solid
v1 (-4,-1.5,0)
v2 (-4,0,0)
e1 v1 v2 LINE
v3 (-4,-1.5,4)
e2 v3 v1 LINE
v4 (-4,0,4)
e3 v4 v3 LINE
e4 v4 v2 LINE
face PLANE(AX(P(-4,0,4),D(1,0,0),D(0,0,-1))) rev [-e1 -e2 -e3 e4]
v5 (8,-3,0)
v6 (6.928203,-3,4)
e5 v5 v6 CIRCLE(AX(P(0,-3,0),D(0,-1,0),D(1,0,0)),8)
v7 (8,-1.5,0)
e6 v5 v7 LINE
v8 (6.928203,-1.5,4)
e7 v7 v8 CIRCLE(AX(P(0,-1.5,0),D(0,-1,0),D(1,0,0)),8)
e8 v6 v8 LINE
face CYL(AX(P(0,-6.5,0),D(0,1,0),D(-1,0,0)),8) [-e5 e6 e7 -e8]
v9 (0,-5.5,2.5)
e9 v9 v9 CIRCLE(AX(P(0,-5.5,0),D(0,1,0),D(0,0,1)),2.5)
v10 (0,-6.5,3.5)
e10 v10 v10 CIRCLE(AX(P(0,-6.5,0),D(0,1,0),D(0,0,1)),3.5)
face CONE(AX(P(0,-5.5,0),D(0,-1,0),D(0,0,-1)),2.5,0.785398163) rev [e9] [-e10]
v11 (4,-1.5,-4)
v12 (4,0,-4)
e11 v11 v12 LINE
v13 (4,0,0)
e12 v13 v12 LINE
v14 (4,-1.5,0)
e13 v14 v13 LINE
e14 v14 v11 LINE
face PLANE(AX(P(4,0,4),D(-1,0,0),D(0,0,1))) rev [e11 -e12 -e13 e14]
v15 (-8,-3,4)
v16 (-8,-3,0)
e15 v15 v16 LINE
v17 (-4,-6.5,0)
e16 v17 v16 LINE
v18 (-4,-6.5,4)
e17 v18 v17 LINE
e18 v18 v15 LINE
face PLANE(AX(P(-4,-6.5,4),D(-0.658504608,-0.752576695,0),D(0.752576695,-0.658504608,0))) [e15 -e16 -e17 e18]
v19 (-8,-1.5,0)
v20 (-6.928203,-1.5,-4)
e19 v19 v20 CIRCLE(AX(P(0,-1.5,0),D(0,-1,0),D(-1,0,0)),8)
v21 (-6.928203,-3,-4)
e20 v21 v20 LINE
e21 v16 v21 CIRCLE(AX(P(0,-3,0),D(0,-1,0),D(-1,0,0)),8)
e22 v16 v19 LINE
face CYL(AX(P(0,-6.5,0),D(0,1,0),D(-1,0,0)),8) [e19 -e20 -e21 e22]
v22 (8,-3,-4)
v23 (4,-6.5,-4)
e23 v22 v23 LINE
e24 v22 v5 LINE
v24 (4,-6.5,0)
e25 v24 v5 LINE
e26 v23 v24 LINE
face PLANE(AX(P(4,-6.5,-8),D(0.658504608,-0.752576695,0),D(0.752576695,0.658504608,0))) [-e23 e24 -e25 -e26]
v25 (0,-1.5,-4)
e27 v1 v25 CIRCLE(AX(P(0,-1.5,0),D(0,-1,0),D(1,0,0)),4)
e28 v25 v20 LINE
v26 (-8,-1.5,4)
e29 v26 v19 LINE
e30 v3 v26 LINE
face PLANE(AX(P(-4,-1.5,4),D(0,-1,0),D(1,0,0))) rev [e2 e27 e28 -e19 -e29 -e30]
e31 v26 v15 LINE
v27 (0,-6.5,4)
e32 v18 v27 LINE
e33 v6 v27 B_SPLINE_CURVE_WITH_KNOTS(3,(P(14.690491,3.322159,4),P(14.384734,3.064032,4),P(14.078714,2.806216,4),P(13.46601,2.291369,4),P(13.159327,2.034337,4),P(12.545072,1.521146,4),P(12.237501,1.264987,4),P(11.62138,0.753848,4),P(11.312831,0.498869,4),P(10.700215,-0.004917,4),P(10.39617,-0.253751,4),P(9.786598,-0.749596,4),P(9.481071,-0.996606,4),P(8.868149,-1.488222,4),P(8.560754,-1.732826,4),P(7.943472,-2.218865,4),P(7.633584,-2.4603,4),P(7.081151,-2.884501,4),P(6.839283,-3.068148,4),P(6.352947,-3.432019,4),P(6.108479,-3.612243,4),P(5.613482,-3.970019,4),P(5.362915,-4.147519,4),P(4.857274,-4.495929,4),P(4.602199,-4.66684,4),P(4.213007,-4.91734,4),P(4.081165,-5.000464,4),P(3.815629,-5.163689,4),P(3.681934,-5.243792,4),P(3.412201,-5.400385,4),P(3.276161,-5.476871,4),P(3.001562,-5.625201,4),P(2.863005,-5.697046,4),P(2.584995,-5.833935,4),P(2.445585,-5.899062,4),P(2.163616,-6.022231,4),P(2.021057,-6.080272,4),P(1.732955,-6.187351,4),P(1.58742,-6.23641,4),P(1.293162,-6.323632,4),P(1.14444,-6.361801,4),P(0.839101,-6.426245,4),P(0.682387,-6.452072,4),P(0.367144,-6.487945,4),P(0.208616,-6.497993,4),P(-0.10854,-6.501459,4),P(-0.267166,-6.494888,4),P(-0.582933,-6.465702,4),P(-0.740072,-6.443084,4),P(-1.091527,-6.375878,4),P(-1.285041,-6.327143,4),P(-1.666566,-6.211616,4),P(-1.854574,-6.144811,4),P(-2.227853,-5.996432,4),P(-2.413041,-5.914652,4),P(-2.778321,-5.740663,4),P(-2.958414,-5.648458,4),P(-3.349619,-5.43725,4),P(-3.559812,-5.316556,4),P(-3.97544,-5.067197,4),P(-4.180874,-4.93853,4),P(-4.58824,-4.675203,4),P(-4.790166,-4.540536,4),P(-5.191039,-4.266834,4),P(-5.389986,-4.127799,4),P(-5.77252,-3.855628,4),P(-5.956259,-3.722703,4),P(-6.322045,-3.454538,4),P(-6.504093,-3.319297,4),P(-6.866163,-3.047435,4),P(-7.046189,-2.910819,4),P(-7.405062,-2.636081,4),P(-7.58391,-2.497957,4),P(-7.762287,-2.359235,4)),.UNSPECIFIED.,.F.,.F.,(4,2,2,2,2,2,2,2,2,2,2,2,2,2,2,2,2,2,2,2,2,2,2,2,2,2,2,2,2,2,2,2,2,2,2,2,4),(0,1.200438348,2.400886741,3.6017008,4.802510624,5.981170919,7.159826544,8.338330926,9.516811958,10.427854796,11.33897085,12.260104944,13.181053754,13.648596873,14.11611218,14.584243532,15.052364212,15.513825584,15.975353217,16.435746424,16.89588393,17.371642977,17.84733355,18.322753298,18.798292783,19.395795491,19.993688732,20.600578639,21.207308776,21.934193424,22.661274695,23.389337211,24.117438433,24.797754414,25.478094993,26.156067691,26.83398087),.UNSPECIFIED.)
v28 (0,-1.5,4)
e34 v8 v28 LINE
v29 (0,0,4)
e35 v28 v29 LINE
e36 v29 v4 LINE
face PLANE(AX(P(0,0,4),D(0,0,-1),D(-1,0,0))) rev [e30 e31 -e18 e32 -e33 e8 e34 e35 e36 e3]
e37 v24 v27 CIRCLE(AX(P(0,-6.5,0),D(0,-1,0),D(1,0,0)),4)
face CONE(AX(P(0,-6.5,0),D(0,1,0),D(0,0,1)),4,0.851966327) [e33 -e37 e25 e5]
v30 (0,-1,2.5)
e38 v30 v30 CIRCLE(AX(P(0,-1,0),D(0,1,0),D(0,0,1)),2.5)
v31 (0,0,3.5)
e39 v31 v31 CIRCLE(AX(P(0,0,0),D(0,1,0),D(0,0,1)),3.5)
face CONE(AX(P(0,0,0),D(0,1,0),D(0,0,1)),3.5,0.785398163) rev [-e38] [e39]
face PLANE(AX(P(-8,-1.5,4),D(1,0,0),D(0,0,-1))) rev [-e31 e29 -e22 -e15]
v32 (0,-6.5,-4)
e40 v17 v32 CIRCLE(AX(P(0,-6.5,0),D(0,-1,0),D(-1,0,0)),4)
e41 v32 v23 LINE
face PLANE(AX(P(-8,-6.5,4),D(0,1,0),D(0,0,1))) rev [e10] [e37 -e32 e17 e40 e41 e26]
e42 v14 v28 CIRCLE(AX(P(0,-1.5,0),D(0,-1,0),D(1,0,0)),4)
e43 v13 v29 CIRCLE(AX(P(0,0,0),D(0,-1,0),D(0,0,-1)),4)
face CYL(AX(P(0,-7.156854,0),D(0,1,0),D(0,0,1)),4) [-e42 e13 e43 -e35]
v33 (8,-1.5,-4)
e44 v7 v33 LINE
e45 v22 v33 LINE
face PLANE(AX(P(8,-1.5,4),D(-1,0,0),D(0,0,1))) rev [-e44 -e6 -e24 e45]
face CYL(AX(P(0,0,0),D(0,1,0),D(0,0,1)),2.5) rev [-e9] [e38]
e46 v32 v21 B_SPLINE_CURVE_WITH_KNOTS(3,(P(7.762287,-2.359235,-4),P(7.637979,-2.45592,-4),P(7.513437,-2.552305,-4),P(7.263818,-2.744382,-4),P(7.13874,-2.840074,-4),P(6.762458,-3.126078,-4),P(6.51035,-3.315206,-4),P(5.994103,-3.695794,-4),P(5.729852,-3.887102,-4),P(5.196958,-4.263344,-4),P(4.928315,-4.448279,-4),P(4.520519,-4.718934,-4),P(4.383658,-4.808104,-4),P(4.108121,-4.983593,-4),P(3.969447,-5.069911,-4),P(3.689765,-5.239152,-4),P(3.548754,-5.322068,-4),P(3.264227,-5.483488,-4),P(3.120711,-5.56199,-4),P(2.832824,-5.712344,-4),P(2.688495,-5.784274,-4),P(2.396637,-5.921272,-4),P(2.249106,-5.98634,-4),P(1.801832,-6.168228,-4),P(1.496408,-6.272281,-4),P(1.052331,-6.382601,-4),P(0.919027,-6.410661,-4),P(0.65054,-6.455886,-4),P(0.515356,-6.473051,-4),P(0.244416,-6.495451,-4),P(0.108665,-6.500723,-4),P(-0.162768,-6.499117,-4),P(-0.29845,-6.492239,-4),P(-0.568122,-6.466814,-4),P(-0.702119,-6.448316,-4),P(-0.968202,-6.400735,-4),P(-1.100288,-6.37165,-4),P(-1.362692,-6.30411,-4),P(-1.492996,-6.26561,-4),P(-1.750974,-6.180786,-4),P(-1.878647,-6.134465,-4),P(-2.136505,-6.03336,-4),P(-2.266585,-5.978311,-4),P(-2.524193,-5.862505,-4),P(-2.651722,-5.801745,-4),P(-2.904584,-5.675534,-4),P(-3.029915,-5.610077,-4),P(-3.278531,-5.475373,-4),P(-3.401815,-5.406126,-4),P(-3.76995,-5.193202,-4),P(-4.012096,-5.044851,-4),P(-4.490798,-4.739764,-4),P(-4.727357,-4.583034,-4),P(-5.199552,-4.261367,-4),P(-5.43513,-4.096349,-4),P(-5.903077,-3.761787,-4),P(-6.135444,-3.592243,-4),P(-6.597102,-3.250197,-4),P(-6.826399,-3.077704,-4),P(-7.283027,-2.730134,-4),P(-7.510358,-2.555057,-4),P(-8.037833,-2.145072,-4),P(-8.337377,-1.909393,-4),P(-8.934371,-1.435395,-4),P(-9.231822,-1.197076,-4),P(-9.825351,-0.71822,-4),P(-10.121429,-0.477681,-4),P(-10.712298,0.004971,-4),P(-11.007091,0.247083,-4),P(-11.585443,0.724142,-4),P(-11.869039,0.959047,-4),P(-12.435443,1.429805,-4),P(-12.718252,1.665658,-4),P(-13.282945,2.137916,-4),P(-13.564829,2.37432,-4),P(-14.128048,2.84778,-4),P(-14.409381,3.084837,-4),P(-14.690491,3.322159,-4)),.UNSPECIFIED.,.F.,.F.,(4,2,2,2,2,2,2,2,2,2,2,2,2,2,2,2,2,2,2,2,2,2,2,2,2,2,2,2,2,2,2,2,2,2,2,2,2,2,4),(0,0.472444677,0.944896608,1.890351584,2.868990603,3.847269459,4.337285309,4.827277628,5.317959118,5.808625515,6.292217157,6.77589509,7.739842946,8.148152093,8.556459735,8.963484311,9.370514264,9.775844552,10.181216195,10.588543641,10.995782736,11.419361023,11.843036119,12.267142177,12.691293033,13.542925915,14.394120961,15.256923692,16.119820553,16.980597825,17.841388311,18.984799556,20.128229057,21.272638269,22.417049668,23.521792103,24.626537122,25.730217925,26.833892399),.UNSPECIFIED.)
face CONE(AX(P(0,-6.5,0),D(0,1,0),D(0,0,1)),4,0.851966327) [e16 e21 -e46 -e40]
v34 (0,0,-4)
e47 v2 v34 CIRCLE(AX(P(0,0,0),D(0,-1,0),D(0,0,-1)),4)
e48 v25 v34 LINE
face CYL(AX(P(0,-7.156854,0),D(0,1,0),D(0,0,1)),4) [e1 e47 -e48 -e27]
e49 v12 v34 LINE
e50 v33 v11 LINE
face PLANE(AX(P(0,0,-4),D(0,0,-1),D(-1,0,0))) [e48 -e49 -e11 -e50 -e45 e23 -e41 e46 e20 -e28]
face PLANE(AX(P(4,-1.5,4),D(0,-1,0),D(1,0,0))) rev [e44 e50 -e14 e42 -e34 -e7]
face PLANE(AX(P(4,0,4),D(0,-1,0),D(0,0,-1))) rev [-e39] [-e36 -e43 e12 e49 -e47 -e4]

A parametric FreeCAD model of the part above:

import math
import FreeCAD as App
import Part
import Sketcher

V = App.Vector
Q = App.Units.Quantity

doc = App.newDocument("Part")
body = doc.addObject("PartDesign::Body", "Body")

# Sketch on XY plane
sketch1 = body.newObject("Sketcher::SketchObject", "Sketch")
sketch1.AttachmentSupport = (doc.getObject("XY_Plane"), [""])
sketch1.MapMode = "FlatFace"
sketch1.addGeometry([
    Part.LineSegment(V(4, 0, 0), V(-4, 0, 0)),  # 0
    Part.LineSegment(V(-4, 0, 0), V(-4, -1.5, 0)),  # 1
    Part.LineSegment(V(-4, -1.5, 0), V(-8, -1.5, 0)),  # 2
    Part.LineSegment(V(-8, -1.5, 0), V(-8, -6.5, 0)),  # 3
    Part.LineSegment(V(-8, -6.5, 0), V(8, -6.5, 0)),  # 4
    Part.LineSegment(V(8, -6.5, 0), V(8, -1.5, 0)),  # 5
    Part.LineSegment(V(8, -1.5, 0), V(4, -1.5, 0)),  # 6
    Part.LineSegment(V(4, -1.5, 0), V(4, 0, 0)),  # 7
], False)
sketch1.addConstraint([
    Sketcher.Constraint("Coincident", 0, 2, 1, 1),
    Sketcher.Constraint("Coincident", 1, 2, 2, 1),
    Sketcher.Constraint("Coincident", 2, 2, 3, 1),
    Sketcher.Constraint("Coincident", 3, 2, 4, 1),
    Sketcher.Constraint("Coincident", 4, 2, 5, 1),
    Sketcher.Constraint("Coincident", 5, 2, 6, 1),
    Sketcher.Constraint("Coincident", 6, 2, 7, 1),
    Sketcher.Constraint("Coincident", 7, 2, 0, 1),
    Sketcher.Constraint("Horizontal", 0),
    Sketcher.Constraint("Vertical", 1),
    Sketcher.Constraint("Horizontal", 2),
    Sketcher.Constraint("Vertical", 3),
    Sketcher.Constraint("Horizontal", 4),
    Sketcher.Constraint("Vertical", 5),
    Sketcher.Constraint("Horizontal", 6),
    Sketcher.Constraint("Vertical", 7),
    Sketcher.Constraint("Symmetric", 0, 2, 7, 2, -1, 1),
    Sketcher.Constraint("Symmetric", 2, 2, 5, 2, -2),
    Sketcher.Constraint("DistanceX", 0, 2, 0, 1, Q("8 mm")),
    Sketcher.Constraint("DistanceX", 2, 2, 2, 1, Q("4 mm")),
    Sketcher.Constraint("DistanceY", 3, 2, 3, 1, Q("5 mm")),
    Sketcher.Constraint("DistanceY", 1, 2, 1, 1, Q("1.5 mm")),
])
pad1 = body.newObject("PartDesign::Pad", "Pad")
pad1.Profile = sketch1
pad1.Length = 8
pad1.Midplane = True

# Sketch on YZ plane
sketch2 = body.newObject("Sketcher::SketchObject", "Sketch001")
sketch2.AttachmentSupport = (doc.getObject("YZ_Plane"), [""])
sketch2.MapMode = "FlatFace"
sketch2.addGeometry([
    Part.LineSegment(V(-6.5, 0, 0), V(0, 0, 0)),  # 0
    Part.LineSegment(V(0, 0, 0), V(0, 3.5, 0)),  # 1
    Part.LineSegment(V(0, 3.5, 0), V(-1, 2.5, 0)),  # 2
    Part.LineSegment(V(-1, 2.5, 0), V(-5.5, 2.5, 0)),  # 3
    Part.LineSegment(V(-5.5, 2.5, 0), V(-6.5, 3.5, 0)),  # 4
    Part.LineSegment(V(-6.5, 3.5, 0), V(-6.5, 0, 0)),  # 5
], False)
sketch2.addConstraint([
    Sketcher.Constraint("Coincident", 0, 2, 1, 1),
    Sketcher.Constraint("Coincident", 1, 2, 2, 1),
    Sketcher.Constraint("Coincident", 2, 2, 3, 1),
    Sketcher.Constraint("Coincident", 3, 2, 4, 1),
    Sketcher.Constraint("Coincident", 4, 2, 5, 1),
    Sketcher.Constraint("Coincident", 5, 2, 0, 1),
    Sketcher.Constraint("Horizontal", 0),
    Sketcher.Constraint("Vertical", 1),
    Sketcher.Constraint("Horizontal", 3),
    Sketcher.Constraint("Vertical", 5),
    Sketcher.Constraint("Coincident", 0, 2, -1, 1),
    Sketcher.Constraint("Perpendicular", 2, 4),
    Sketcher.Constraint("Horizontal", 1, 2, 4, 2),
    Sketcher.Constraint("Equal", 2, 4),
    Sketcher.Constraint("DistanceX", 0, 1, 0, 2, Q("6.5 mm")),
    Sketcher.Constraint("DistanceX", 3, 2, 3, 1, Q("4.5 mm")),
    Sketcher.Constraint("DistanceY", 1, 1, 1, 2, Q("3.5 mm")),
])
groove = body.newObject("PartDesign::Groove", "Groove")
groove.Profile = sketch2
groove.ReferenceAxis = (sketch2, ["H_Axis"])
groove.Angle = 360

# Sketch on XZ plane
sketch3 = body.newObject("Sketcher::SketchObject", "Sketch002")
sketch3.AttachmentSupport = (doc.getObject("XZ_Plane"), [""])
sketch3.MapMode = "FlatFace"
sketch3.addGeometry([
    Part.LineSegment(V(-4, -4, 0), V(-4, 0, 0)),  # 0
    Part.ArcOfCircle(Part.Circle(V(0, 0, 0), V(0, 0, 1), 4), math.radians(180), math.radians(270)),  # 1
    Part.LineSegment(V(0, -4, 0), V(-4, -4, 0)),  # 2
    Part.LineSegment(V(0, 4, 0), V(4, 4, 0)),  # 3
    Part.LineSegment(V(4, 4, 0), V(4, 0, 0)),  # 4
    Part.ArcOfCircle(Part.Circle(V(0, 0, 0), V(0, 0, 1), 4), math.radians(0), math.radians(90)),  # 5
], False)
sketch3.addConstraint([
    Sketcher.Constraint("Tangent", 0, 2, 1, 1),
    Sketcher.Constraint("Tangent", 1, 2, 2, 1),
    Sketcher.Constraint("Coincident", 2, 2, 0, 1),
    Sketcher.Constraint("Coincident", 3, 2, 4, 1),
    Sketcher.Constraint("Tangent", 4, 2, 5, 1),
    Sketcher.Constraint("Tangent", 5, 2, 3, 1),
    Sketcher.Constraint("Vertical", 0),
    Sketcher.Constraint("Horizontal", 2),
    Sketcher.Constraint("Horizontal", 3),
    Sketcher.Constraint("Vertical", 4),
    Sketcher.Constraint("Coincident", 1, 3, -1, 1),
    Sketcher.Constraint("Coincident", 5, 3, -1, 1),
    Sketcher.Constraint("Equal", 1, 5),
    Sketcher.Constraint("Radius", 1, Q("4 mm")),
])
pocket1 = body.newObject("PartDesign::Pocket", "Pocket")
pocket1.Profile = sketch3
pocket1.Length = 1.5
pocket1.Reversed = True

# Sketch on XZ plane
sketch4 = body.newObject("Sketcher::SketchObject", "Sketch003")
sketch4.AttachmentSupport = (doc.getObject("XZ_Plane"), [""])
sketch4.MapMode = "FlatFace"
sketch4.AttachmentOffset = App.Placement(V(0, 0, 1.5), App.Rotation())
sketch4.addGeometry([
    Part.LineSegment(V(-8, -4, 0), V(-8, 0, 0)),  # 0
    Part.ArcOfCircle(Part.Circle(V(0, 0, 0), V(0, 0, 1), 8), math.radians(-180), math.radians(-150)),  # 1
    Part.LineSegment(V(-6.9, -4, 0), V(-8, -4, 0)),  # 2
    Part.LineSegment(V(8, 4, 0), V(8, 0, 0)),  # 3
    Part.ArcOfCircle(Part.Circle(V(0, 0, 0), V(0, 0, 1), 8), math.radians(0), math.radians(30)),  # 4
    Part.LineSegment(V(6.9, 4, 0), V(8, 4, 0)),  # 5
], False)
sketch4.addConstraint([
    Sketcher.Constraint("Tangent", 0, 2, 1, 1),
    Sketcher.Constraint("Coincident", 1, 2, 2, 1),
    Sketcher.Constraint("Coincident", 2, 2, 0, 1),
    Sketcher.Constraint("Tangent", 3, 2, 4, 1),
    Sketcher.Constraint("Coincident", 4, 2, 5, 1),
    Sketcher.Constraint("Coincident", 5, 2, 3, 1),
    Sketcher.Constraint("Vertical", 0),
    Sketcher.Constraint("Horizontal", 2),
    Sketcher.Constraint("Vertical", 3),
    Sketcher.Constraint("Horizontal", 5),
    Sketcher.Constraint("Coincident", 1, 3, -1, 1),
    Sketcher.Constraint("Coincident", 4, 3, -1, 1),
    Sketcher.Constraint("Equal", 1, 4),
    Sketcher.Constraint("Equal", 2, 5),
    Sketcher.Constraint("Radius", 1, Q("8 mm")),
    Sketcher.Constraint("DistanceY", 0, 1, 0, 2, Q("4 mm")),
])
pocket2 = body.newObject("PartDesign::Pocket", "Pocket001")
pocket2.Profile = sketch4
pocket2.Type = "ThroughAll"
pocket2.Reversed = True

# Sketch on XY plane
sketch5 = body.newObject("Sketcher::SketchObject", "Sketch004")
sketch5.AttachmentSupport = (doc.getObject("XY_Plane"), [""])
sketch5.MapMode = "FlatFace"
sketch5.AttachmentOffset = App.Placement(V(0, 0, 4), App.Rotation())
sketch5.addGeometry([
    Part.LineSegment(V(-8, -3, 0), V(-8, -6.5, 0)),
    Part.LineSegment(V(-8, -6.5, 0), V(-4, -6.5, 0)),
    Part.LineSegment(V(-4, -6.5, 0), V(-8, -3, 0)),
], False)
sketch5.addConstraint([
    Sketcher.Constraint("Coincident", 0, 2, 1, 1),
    Sketcher.Constraint("Coincident", 1, 2, 2, 1),
    Sketcher.Constraint("Coincident", 2, 2, 0, 1),
    Sketcher.Constraint("Vertical", 0),
    Sketcher.Constraint("Horizontal", 1),
    Sketcher.Constraint("DistanceX", 1, 1, 1, 2, Q("4 mm")),
    Sketcher.Constraint("DistanceY", 0, 2, 0, 1, Q("3.5 mm")),
    Sketcher.Constraint("DistanceX", 0, 2, -1, 1, Q("8 mm")),
    Sketcher.Constraint("DistanceY", 2, 2, -1, 1, Q("3 mm")),
])

# Sketch on XZ plane
sketch6 = body.newObject("Sketcher::SketchObject", "Sketch005")
sketch6.AttachmentSupport = (doc.getObject("XZ_Plane"), [""])
sketch6.MapMode = "FlatFace"
sketch6.AttachmentOffset = App.Placement(V(0, 0, 6.5), App.Rotation())
sketch6.addGeometry([
    Part.LineSegment(V(0, 8, 0), V(-8, 8, 0)),  # 0
    Part.LineSegment(V(-8, 8, 0), V(-8, 0, 0)),  # 1
    Part.ArcOfCircle(Part.Circle(V(0, 0, 0), V(0, 0, 1), 8), math.radians(-180), math.radians(-90)),  # 2
    Part.LineSegment(V(0, -8, 0), V(8, -8, 0)),  # 3
    Part.LineSegment(V(8, -8, 0), V(8, 0, 0)),  # 4
    Part.ArcOfCircle(Part.Circle(V(0, 0, 0), V(0, 0, 1), 8), math.radians(0), math.radians(90)),  # 5
], False)
sketch6.addConstraint([
    Sketcher.Constraint("Coincident", 0, 2, 1, 1),
    Sketcher.Constraint("Tangent", 1, 2, 2, 1),
    Sketcher.Constraint("Tangent", 2, 2, 3, 1),
    Sketcher.Constraint("Coincident", 3, 2, 4, 1),
    Sketcher.Constraint("Tangent", 4, 2, 5, 1),
    Sketcher.Constraint("Tangent", 5, 2, 0, 1),
    Sketcher.Constraint("Horizontal", 0),
    Sketcher.Constraint("Vertical", 1),
    Sketcher.Constraint("Horizontal", 3),
    Sketcher.Constraint("Vertical", 4),
    Sketcher.Constraint("Coincident", 2, 3, -1, 1),
    Sketcher.Constraint("Coincident", 5, 3, -1, 1),
    Sketcher.Constraint("Equal", 2, 5),
    Sketcher.Constraint("Radius", 2, Q("8 mm")),
])
doc.recompute()

subtractivepipe = body.newObject("PartDesign::SubtractivePipe", "SubtractivePipe")
subtractivepipe.Profile = sketch5
subtractivepipe.Spine = (sketch6, ["Edge1", "Edge2", "Edge3", "Edge4", "Edge5", "Edge6"])
subtractivepipe.Transition = "Right corner"

doc.recompute()
